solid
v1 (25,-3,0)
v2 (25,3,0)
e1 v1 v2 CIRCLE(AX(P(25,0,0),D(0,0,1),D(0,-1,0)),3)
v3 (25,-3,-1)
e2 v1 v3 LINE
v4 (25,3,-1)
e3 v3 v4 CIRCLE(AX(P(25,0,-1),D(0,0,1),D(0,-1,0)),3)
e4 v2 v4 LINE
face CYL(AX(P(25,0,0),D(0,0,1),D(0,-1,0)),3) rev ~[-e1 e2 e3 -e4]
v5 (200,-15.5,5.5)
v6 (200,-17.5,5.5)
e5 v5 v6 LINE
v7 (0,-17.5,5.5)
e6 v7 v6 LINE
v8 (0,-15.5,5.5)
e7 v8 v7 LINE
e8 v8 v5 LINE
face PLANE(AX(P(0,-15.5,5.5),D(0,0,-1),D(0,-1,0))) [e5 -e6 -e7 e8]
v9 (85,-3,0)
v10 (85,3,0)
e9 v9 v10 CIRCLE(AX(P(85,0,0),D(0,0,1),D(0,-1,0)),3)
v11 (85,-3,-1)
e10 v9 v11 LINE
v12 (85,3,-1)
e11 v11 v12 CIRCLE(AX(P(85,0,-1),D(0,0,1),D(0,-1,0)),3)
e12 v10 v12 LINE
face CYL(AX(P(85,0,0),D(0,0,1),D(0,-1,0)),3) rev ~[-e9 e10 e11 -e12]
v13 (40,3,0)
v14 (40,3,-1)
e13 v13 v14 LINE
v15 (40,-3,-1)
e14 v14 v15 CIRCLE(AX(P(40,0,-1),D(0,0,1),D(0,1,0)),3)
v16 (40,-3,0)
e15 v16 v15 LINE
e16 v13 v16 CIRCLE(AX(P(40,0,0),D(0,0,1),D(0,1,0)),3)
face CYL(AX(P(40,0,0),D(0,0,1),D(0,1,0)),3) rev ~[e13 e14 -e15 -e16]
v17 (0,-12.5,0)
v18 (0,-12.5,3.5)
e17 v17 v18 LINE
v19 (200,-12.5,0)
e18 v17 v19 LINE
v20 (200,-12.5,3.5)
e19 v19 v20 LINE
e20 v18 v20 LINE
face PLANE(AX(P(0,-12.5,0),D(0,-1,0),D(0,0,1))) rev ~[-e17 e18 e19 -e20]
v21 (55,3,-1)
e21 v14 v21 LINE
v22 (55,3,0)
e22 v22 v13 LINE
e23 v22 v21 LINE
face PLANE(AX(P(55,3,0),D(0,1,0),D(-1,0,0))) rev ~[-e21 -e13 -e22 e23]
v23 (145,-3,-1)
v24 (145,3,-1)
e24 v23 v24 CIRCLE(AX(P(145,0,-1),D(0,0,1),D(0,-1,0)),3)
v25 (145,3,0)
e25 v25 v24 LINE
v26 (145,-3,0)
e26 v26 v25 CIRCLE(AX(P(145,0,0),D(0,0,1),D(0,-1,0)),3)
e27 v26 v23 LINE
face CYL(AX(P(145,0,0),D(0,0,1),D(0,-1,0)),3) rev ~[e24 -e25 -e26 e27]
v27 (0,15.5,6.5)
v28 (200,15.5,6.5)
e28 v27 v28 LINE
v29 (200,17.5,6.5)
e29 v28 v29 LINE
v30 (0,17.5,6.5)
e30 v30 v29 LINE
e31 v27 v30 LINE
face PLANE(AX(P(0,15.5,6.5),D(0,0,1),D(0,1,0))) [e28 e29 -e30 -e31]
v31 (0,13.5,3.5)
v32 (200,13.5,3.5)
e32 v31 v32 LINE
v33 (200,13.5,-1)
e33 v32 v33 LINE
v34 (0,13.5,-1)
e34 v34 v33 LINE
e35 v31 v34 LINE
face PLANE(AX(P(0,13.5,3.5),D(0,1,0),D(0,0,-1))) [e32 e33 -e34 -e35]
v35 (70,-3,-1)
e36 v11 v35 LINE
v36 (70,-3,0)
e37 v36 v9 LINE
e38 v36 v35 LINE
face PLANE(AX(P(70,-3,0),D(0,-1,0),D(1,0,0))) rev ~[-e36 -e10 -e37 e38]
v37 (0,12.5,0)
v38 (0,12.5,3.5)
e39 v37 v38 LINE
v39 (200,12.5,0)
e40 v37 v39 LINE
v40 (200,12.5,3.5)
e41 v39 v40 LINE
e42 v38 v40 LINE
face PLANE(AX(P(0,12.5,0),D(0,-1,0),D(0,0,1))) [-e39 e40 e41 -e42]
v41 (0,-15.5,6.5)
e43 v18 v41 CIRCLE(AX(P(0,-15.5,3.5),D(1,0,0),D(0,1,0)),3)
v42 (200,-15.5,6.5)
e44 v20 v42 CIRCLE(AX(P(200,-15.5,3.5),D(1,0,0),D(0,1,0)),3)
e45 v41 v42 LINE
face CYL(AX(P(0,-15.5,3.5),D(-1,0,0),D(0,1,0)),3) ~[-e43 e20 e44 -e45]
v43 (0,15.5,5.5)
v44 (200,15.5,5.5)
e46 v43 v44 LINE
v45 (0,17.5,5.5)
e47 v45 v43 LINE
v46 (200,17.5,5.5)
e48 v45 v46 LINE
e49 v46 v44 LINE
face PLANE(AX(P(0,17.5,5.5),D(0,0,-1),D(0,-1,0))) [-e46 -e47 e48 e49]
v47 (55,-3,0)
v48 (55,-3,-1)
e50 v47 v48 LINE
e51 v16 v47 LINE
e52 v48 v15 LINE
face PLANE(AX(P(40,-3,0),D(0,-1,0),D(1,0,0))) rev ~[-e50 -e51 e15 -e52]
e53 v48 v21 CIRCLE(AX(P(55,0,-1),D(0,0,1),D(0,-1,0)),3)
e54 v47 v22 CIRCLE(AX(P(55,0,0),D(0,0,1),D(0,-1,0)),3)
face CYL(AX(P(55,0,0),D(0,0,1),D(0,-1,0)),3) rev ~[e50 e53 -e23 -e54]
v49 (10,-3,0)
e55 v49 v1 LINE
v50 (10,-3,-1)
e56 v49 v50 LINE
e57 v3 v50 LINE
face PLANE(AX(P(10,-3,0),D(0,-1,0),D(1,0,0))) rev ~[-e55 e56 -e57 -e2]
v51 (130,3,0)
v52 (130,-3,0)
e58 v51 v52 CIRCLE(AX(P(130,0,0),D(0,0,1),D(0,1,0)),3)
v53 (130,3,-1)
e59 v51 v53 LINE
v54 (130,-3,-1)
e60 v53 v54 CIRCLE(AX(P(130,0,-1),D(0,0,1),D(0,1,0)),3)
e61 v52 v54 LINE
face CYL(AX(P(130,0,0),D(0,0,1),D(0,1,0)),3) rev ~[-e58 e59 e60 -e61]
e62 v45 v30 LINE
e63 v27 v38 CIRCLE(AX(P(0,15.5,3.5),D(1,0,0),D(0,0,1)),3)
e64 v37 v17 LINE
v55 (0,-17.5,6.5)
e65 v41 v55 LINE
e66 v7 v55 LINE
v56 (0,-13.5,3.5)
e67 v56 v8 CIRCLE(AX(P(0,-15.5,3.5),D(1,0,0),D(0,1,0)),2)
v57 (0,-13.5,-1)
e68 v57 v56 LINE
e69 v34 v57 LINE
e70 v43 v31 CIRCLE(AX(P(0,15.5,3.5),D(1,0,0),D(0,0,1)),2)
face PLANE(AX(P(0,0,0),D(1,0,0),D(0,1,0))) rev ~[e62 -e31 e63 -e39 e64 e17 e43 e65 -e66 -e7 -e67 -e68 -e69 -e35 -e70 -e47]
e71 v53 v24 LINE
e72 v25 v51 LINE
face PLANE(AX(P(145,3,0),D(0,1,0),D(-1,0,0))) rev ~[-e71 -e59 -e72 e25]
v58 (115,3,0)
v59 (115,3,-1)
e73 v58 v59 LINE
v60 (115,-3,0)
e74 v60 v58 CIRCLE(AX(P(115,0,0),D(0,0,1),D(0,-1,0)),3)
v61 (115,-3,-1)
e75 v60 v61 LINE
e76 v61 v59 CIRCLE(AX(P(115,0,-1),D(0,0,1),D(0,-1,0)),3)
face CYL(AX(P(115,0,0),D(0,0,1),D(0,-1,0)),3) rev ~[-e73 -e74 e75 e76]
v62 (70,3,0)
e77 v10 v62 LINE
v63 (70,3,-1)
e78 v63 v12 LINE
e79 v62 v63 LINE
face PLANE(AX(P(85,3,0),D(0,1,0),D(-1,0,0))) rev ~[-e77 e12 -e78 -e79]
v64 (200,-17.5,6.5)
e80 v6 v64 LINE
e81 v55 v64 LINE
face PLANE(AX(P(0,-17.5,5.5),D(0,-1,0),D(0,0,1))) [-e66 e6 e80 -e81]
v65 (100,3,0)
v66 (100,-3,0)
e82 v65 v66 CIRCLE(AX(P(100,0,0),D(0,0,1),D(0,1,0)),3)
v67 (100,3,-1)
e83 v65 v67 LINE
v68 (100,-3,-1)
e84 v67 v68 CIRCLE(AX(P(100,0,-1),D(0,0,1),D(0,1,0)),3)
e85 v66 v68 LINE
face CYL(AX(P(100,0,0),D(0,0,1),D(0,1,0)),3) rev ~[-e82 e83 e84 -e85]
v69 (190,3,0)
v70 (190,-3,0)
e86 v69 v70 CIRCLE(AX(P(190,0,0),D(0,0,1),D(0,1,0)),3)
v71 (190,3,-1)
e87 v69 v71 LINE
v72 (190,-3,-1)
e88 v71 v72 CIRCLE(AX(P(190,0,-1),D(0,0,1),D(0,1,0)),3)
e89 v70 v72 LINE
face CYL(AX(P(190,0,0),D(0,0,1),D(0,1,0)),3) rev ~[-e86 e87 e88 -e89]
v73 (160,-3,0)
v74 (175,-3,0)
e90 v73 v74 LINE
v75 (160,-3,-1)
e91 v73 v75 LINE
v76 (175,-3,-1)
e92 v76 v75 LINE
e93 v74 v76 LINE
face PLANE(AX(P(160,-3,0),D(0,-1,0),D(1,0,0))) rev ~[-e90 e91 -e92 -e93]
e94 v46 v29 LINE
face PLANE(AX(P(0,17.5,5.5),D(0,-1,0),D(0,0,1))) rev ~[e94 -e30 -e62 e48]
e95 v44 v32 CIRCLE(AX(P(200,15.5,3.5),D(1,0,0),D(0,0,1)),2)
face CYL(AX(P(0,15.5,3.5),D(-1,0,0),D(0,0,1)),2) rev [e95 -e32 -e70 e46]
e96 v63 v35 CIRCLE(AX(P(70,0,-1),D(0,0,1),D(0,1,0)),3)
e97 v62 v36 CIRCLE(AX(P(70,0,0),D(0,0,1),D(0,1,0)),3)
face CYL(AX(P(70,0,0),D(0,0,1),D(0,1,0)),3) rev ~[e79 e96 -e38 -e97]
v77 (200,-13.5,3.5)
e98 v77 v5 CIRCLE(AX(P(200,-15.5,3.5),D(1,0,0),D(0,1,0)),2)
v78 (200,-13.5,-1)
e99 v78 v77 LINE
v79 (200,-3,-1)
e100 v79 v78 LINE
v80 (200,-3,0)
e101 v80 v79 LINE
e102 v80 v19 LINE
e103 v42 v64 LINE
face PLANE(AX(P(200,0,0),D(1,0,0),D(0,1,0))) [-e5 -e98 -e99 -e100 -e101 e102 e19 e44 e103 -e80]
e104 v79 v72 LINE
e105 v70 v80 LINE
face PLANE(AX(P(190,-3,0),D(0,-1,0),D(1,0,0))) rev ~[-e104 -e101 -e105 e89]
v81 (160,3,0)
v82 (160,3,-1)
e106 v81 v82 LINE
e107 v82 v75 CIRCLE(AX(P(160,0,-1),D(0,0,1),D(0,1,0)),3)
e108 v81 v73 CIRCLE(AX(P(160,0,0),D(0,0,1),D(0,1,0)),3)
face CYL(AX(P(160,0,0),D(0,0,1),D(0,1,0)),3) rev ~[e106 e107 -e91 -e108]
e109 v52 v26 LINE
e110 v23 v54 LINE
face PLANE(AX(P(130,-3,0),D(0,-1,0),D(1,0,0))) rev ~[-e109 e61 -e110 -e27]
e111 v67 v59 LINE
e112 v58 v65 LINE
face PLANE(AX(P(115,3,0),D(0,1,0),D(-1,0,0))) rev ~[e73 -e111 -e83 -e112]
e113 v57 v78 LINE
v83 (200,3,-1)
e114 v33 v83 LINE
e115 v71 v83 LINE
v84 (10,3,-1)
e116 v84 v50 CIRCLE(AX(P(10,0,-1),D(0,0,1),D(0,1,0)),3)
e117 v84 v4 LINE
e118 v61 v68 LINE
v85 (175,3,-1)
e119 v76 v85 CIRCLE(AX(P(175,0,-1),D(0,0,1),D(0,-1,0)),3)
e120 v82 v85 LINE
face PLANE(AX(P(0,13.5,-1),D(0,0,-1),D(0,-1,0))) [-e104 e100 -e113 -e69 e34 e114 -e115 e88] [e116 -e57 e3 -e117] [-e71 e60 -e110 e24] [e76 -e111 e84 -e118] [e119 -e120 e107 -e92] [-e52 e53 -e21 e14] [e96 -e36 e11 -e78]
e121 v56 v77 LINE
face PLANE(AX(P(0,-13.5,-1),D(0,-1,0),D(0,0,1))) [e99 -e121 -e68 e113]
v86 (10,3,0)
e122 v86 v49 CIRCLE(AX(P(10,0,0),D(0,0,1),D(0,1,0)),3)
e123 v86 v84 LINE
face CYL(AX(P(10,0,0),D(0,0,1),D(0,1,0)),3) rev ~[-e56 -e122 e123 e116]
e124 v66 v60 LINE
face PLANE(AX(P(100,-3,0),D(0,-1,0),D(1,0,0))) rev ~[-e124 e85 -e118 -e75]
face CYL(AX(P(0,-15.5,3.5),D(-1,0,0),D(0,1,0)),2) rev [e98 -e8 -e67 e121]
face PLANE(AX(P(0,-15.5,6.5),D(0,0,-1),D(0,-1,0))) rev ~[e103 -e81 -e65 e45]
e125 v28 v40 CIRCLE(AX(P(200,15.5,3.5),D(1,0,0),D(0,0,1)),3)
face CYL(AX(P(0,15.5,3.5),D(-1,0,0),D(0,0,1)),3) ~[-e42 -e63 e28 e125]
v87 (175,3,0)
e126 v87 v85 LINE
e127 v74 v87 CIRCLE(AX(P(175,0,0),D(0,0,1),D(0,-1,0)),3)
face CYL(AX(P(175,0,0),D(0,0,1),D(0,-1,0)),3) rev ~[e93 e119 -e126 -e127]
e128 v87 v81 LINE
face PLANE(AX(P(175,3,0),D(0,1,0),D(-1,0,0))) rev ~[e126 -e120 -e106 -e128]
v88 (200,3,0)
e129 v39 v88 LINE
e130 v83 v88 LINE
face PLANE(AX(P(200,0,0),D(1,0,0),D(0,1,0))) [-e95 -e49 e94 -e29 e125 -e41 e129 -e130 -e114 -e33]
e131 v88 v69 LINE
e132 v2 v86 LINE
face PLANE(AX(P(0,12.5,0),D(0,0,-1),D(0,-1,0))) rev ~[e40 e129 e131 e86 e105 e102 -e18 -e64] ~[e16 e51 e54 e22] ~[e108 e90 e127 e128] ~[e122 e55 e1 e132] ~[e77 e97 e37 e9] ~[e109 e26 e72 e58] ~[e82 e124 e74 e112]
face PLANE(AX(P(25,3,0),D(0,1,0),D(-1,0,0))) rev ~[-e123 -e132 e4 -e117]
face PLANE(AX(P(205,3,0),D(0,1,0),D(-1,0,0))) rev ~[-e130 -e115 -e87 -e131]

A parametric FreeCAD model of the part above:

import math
import FreeCAD as App
import Part
import Sketcher
from FreeCAD import Vector
Q = App.Units.Quantity

doc = App.newDocument("Part")
body = doc.addObject("PartDesign::Body", "Body")

# Sketch on YZ plane
sketch1 = body.newObject("Sketcher::SketchObject", "Sketch")
sketch1.AttachmentSupport = (doc.getObject("YZ_Plane"), [""])
sketch1.MapMode = "FlatFace"
sketch1.addGeometry([
    Part.LineSegment(Vector(12.5, 3.5, 0), Vector(12.5, 0, 0)),  # 0
    Part.LineSegment(Vector(12.5, 0, 0), Vector(-12.5, 0, 0)),  # 1
    Part.LineSegment(Vector(-12.5, 0, 0), Vector(-12.5, 3.5, 0)),  # 2
    Part.ArcOfCircle(Part.Circle(Vector(-15.5, 3.5, 0), Vector(0, 0, 1), 3), math.radians(0), math.radians(90)),  # 3
    Part.LineSegment(Vector(-15.5, 6.5, 0), Vector(-17.5, 6.5, 0)),  # 4
    Part.LineSegment(Vector(-17.5, 6.5, 0), Vector(-17.5, 5.5, 0)),  # 5
    Part.LineSegment(Vector(-17.5, 5.5, 0), Vector(-15.5, 5.5, 0)),  # 6
    Part.ArcOfCircle(Part.Circle(Vector(-15.5, 3.5, 0), Vector(0, 0, 1), 2), math.radians(0), math.radians(90)),  # 7
    Part.LineSegment(Vector(-13.5, 3.5, 0), Vector(-13.5, -1, 0)),  # 8
    Part.LineSegment(Vector(-13.5, -1, 0), Vector(13.5, -1, 0)),  # 9
    Part.LineSegment(Vector(13.5, -1, 0), Vector(13.5, 3.5, 0)),  # 10
    Part.ArcOfCircle(Part.Circle(Vector(15.5, 3.5, 0), Vector(0, 0, 1), 2), math.radians(90), math.radians(180)),  # 11
    Part.LineSegment(Vector(15.5, 5.5, 0), Vector(17.5, 5.5, 0)),  # 12
    Part.LineSegment(Vector(17.5, 5.5, 0), Vector(17.5, 6.5, 0)),  # 13
    Part.LineSegment(Vector(17.5, 6.5, 0), Vector(15.5, 6.5, 0)),  # 14
    Part.ArcOfCircle(Part.Circle(Vector(15.5, 3.5, 0), Vector(0, 0, 1), 3), math.radians(90), math.radians(180)),  # 15
], False)
sketch1.addConstraint([
    Sketcher.Constraint("Coincident", 0, 2, 1, 1),
    Sketcher.Constraint("Coincident", 1, 2, 2, 1),
    Sketcher.Constraint("Tangent", 2, 2, 3, 1),
    Sketcher.Constraint("Tangent", 3, 2, 4, 1),
    Sketcher.Constraint("Coincident", 4, 2, 5, 1),
    Sketcher.Constraint("Coincident", 5, 2, 6, 1),
    Sketcher.Constraint("Tangent", 6, 2, 7, 2),
    Sketcher.Constraint("Tangent", 7, 1, 8, 1),
    Sketcher.Constraint("Coincident", 8, 2, 9, 1),
    Sketcher.Constraint("Coincident", 9, 2, 10, 1),
    Sketcher.Constraint("Tangent", 10, 2, 11, 2),
    Sketcher.Constraint("Tangent", 11, 1, 12, 1),
    Sketcher.Constraint("Coincident", 12, 2, 13, 1),
    Sketcher.Constraint("Coincident", 13, 2, 14, 1),
    Sketcher.Constraint("Tangent", 14, 2, 15, 1),
    Sketcher.Constraint("Tangent", 15, 2, 0, 1),
    Sketcher.Constraint("Vertical", 0),
    Sketcher.Constraint("Horizontal", 1),
    Sketcher.Constraint("Vertical", 2),
    Sketcher.Constraint("Horizontal", 4),
    Sketcher.Constraint("Vertical", 5),
    Sketcher.Constraint("Horizontal", 6),
    Sketcher.Constraint("Vertical", 8),
    Sketcher.Constraint("Horizontal", 9),
    Sketcher.Constraint("Vertical", 10),
    Sketcher.Constraint("Horizontal", 12),
    Sketcher.Constraint("Vertical", 13),
    Sketcher.Constraint("Horizontal", 14),
    Sketcher.Constraint("Coincident", 7, 3, 3, 3),
    Sketcher.Constraint("Coincident", 15, 3, 11, 3),
    Sketcher.Constraint("Equal", 7, 11),
    Sketcher.Constraint("Equal", 3, 15),
    Sketcher.Constraint("Symmetric", 0, 2, 1, 2, -1, 1),
    Sketcher.Constraint("Symmetric", 5, 2, 12, 2, -2),
    Sketcher.Constraint("Radius", 7, Q("2 mm")),
    Sketcher.Constraint("DistanceX", 1, 2, 1, 1, Q("25 mm")),
    Sketcher.Constraint("DistanceX", 4, 2, 4, 1, Q("2 mm")),
    Sketcher.Constraint("DistanceY", 5, 2, 5, 1, Q("1 mm")),
    Sketcher.Constraint("DistanceY", 8, 2, -1, 1, Q("1 mm")),
    Sketcher.Constraint("DistanceY", 0, 2, 0, 1, Q("3.5 mm")),
])
pad1 = body.newObject("PartDesign::Pad", "Pad")
pad1.Profile = sketch1
pad1.Length = 200

# Sketch on XY plane
sketch2 = body.newObject("Sketcher::SketchObject", "Sketch001")
sketch2.AttachmentSupport = (doc.getObject("XY_Plane"), [""])
sketch2.MapMode = "FlatFace"
sketch2.addGeometry([
    Part.ArcOfCircle(Part.Circle(Vector(10, 0, 0), Vector(0, 0, 1), 3), math.radians(90), math.radians(270)),
    Part.LineSegment(Vector(10, -3, 0), Vector(25, -3, 0)),
    Part.ArcOfCircle(Part.Circle(Vector(25, 0, 0), Vector(0, 0, 1), 3), math.radians(-90), math.radians(90)),
    Part.LineSegment(Vector(25, 3, 0), Vector(10, 3, 0)),
], False)
sketch2.addConstraint([
    Sketcher.Constraint("Tangent", 0, 2, 1, 1),
    Sketcher.Constraint("Tangent", 1, 2, 2, 1),
    Sketcher.Constraint("Tangent", 2, 2, 3, 1),
    Sketcher.Constraint("Tangent", 3, 2, 0, 1),
    Sketcher.Constraint("Horizontal", 1),
    Sketcher.Constraint("Horizontal", 3),
    Sketcher.Constraint("PointOnObject", 0, 3, -1),
    Sketcher.Constraint("Radius", 0, Q("3 mm")),
    Sketcher.Constraint("DistanceX", 1, 1, 1, 2, Q("15 mm")),
    Sketcher.Constraint("DistanceX", -1, 1, 0, 3, Q("10 mm")),
])
pocket1 = body.newObject("PartDesign::Pocket", "Pocket")
pocket1.Profile = sketch2
pocket1.Type = "ThroughAll"
doc.recompute()

linearpattern = body.newObject("PartDesign::LinearPattern", "LinearPattern")
linearpattern.Originals = [pocket1]
linearpattern.Direction = (doc.getObject("X_Axis"), [""])
linearpattern.Mode = "offset"
linearpattern.Offset = 30
linearpattern.Occurrences = 10
body.Tip = linearpattern

doc.recompute()
